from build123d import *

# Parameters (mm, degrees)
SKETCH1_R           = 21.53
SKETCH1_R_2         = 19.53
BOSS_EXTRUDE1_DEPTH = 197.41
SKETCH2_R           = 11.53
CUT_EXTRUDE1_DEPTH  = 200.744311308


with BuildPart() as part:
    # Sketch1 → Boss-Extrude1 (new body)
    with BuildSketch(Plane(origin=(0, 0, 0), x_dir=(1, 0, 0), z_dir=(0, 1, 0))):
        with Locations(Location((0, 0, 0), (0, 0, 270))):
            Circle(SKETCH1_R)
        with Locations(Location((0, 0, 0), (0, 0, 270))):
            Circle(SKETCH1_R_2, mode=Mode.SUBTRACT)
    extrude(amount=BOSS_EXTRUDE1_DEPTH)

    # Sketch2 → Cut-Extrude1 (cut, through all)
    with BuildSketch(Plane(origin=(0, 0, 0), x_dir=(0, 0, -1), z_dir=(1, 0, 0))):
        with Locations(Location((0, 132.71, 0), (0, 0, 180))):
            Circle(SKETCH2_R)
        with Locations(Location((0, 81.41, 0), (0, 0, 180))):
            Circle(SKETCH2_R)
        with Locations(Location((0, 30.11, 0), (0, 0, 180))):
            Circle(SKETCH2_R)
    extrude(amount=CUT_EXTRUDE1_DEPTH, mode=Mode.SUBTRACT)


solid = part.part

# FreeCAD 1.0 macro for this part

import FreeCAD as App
import Part
import Sketcher
from FreeCAD import Vector

doc = App.newDocument("Part")
params = doc.addObject("Spreadsheet::Sheet", "Params")
for row, (alias, value) in enumerate([
    ("sketch1_diameter", "43.06 mm"),
    ("sketch1_diameter2", "39.06 mm"),
    ("pad1_length", "197.41 mm"),
    ("sketch2_diameter", "23.06 mm"),
], start=1):
    params.set(f"A{row}", alias)
    params.set(f"B{row}", "=" + value)
    params.setAlias(f"B{row}", alias)

body = doc.addObject("PartDesign::Body", "Body")

sketch1 = body.newObject("Sketcher::SketchObject", "Sketch")
sketch1.AttachmentSupport = (doc.getObject("XZ_Plane"), [""])
sketch1.MapMode = "FlatFace"
sketch1.addGeometry(Part.Circle(Vector(0, 0, 0), Vector(0, 0, 1), 21.53), False)
sketch1.addGeometry(Part.Circle(Vector(0, 0, 0), Vector(0, 0, 1), 19.53), False)
sketch1.addConstraint(Sketcher.Constraint("Coincident", 0, 3, -1, 1))
sketch1.addConstraint(Sketcher.Constraint("Coincident", 1, 3, -1, 1))
sketch1.addConstraint(Sketcher.Constraint("Diameter", 0, 43.06))
sketch1.addConstraint(Sketcher.Constraint("Diameter", 1, 39.06))
sketch1.setExpression("Constraints[2]", "Params.sketch1_diameter")
sketch1.setExpression("Constraints[3]", "Params.sketch1_diameter2")
pad1 = body.newObject("PartDesign::Pad", "Pad")
pad1.Profile = sketch1
pad1.setExpression("Length", "Params.pad1_length")
pad1.Reversed = True

sketch2 = body.newObject("Sketcher::SketchObject", "Sketch001")
sketch2.AttachmentSupport = (doc.getObject("YZ_Plane"), [""])
sketch2.MapMode = "FlatFace"
sketch2.addGeometry(Part.Circle(Vector(132.71, 0, 0), Vector(0, 0, 1), 11.53), False)
sketch2.addGeometry(Part.Circle(Vector(81.41, 0, 0), Vector(0, 0, 1), 11.53), False)
sketch2.addGeometry(Part.Circle(Vector(30.11, 0, 0), Vector(0, 0, 1), 11.53), False)
sketch2.addConstraint(Sketcher.Constraint("Equal", 0, 1))
sketch2.addConstraint(Sketcher.Constraint("Equal", 1, 2))
sketch2.addConstraint(Sketcher.Constraint("PointOnObject", 0, 3, -1))
sketch2.addConstraint(Sketcher.Constraint("PointOnObject", 1, 3, -1))
sketch2.addConstraint(Sketcher.Constraint("PointOnObject", 2, 3, -1))
sketch2.addConstraint(Sketcher.Constraint("Diameter", 0, 23.06))
sketch2.addConstraint(Sketcher.Constraint("DistanceX", 1, 3, 0, 3, 51.3))
sketch2.addConstraint(Sketcher.Constraint("DistanceX", 2, 3, 1, 3, 51.3))
sketch2.addConstraint(Sketcher.Constraint("DistanceX", -1, 1, 0, 3, 132.71))
sketch2.setExpression("Constraints[5]", "Params.sketch2_diameter")
pocket1 = body.newObject("PartDesign::Pocket", "Pocket")
pocket1.Profile = sketch2
pocket1.Type = "ThroughAll"
pocket1.Reversed = True

doc.recompute()
